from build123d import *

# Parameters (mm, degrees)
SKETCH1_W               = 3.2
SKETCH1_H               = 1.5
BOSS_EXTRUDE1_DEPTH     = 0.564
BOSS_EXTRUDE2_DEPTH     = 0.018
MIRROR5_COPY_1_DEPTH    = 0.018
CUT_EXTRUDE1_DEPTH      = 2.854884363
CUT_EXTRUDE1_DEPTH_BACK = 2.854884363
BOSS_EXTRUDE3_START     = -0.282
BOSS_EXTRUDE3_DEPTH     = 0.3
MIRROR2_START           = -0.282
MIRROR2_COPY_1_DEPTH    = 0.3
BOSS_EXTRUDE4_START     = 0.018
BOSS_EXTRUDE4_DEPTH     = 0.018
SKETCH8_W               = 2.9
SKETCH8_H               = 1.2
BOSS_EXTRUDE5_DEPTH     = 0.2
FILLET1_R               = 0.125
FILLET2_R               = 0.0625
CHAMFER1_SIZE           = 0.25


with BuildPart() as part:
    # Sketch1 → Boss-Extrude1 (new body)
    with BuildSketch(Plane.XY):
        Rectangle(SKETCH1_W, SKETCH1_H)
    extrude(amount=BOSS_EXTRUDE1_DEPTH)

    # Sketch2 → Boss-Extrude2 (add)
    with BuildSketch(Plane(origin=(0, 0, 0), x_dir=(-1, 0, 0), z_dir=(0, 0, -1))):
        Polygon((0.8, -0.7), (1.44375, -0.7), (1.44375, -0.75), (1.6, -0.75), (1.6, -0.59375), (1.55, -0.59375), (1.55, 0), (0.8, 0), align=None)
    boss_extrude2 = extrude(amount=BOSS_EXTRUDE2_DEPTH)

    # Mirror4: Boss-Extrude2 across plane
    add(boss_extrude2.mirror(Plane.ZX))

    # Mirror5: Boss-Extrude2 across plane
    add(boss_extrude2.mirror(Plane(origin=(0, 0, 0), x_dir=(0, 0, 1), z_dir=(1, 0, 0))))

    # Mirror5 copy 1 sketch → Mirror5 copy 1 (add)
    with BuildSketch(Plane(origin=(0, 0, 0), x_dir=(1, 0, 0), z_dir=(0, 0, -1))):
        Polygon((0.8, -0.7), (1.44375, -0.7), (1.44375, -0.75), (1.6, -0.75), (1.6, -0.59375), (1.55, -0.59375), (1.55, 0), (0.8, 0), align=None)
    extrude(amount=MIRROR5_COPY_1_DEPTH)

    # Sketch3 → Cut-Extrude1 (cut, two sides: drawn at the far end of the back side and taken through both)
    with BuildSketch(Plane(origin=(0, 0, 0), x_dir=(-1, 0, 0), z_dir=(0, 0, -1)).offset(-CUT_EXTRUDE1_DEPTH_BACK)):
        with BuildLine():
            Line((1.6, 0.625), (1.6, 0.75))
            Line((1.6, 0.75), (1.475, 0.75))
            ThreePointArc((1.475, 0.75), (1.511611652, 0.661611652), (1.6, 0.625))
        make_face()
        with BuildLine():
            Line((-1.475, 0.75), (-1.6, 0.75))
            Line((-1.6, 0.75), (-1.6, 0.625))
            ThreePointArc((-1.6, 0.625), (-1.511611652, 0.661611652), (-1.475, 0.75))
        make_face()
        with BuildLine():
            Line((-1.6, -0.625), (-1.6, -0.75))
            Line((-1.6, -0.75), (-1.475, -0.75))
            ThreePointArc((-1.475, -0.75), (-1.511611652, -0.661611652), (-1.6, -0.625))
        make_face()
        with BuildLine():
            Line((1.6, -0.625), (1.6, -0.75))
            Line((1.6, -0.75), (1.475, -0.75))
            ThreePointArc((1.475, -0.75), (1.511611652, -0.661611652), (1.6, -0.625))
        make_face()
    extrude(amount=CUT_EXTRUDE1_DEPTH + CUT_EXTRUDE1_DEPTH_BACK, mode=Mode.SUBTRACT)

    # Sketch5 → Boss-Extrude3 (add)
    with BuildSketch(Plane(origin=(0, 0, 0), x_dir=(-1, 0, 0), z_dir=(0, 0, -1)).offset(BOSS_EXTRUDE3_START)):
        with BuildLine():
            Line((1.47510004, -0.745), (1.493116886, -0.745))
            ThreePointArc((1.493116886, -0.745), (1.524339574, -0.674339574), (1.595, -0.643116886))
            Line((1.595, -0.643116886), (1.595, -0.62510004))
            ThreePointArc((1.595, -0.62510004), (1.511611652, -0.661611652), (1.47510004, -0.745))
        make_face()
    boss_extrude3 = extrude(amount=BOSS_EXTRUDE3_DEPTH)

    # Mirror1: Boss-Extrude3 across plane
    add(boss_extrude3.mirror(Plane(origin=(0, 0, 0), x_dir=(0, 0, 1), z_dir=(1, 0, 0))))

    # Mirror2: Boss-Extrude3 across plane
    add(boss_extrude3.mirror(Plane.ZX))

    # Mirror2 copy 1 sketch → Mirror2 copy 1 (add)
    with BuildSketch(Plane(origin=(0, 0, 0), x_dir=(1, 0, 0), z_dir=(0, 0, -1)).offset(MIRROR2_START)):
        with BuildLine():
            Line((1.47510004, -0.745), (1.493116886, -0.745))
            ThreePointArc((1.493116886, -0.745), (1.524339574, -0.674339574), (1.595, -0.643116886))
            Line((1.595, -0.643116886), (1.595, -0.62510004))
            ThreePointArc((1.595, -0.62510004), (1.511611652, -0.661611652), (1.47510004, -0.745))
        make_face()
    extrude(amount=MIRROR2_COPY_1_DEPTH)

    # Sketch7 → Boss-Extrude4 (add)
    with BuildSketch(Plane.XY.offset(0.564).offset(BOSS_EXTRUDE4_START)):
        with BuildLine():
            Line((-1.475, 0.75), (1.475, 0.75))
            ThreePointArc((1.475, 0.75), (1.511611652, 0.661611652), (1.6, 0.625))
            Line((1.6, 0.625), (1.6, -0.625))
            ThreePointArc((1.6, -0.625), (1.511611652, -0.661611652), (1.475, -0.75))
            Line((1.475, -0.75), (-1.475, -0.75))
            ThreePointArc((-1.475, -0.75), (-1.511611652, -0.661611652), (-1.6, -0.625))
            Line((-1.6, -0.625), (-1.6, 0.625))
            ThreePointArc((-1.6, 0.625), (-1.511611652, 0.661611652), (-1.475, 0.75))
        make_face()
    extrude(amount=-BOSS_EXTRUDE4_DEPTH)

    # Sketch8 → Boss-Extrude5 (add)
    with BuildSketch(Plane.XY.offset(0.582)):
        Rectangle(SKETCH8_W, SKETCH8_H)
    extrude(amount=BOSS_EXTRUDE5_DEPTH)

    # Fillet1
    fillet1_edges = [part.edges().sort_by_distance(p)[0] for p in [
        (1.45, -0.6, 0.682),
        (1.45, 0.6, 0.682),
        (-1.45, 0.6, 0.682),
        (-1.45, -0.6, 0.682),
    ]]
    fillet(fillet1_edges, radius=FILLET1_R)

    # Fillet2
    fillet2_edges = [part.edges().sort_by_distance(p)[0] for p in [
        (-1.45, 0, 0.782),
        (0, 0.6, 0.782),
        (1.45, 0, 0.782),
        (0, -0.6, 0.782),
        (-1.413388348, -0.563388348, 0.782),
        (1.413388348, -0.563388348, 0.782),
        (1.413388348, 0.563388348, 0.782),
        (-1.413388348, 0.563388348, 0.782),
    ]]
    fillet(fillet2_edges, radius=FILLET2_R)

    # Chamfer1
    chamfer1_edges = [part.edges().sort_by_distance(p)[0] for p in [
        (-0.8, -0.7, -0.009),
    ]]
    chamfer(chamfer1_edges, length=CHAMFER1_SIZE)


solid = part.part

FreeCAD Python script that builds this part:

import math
import FreeCAD as App
import Part
import Sketcher

V = App.Vector


def edges_at(feature, points):
    """Names of the edges that pass closest to the given points."""
    edges = feature.Shape.Edges
    near = lambda p: min(range(len(edges)), key=lambda i: edges[i].distToShape(Part.Vertex(*p))[0])
    return sorted({f"Edge{near(p) + 1}" for p in points})

doc = App.newDocument("Part")
params = doc.addObject("Spreadsheet::Sheet", "Params")
for row, (alias, value) in enumerate([
    ("sketch1_width", "3.2 mm"),
    ("sketch1_height", "1.5 mm"),
    ("pad1_length", "0.564 mm"),
    ("sketch2_height", "0.7 mm"),
    ("sketch2_width", "0.05 mm"),
    ("sketch2_width2", "0.75 mm"),
    ("pad2_length", "0.018 mm"),
    ("sketch3_height", "0.7 mm"),
    ("sketch3_width", "0.05 mm"),
    ("sketch3_width2", "0.75 mm"),
    ("pad3_length", "0.018 mm"),
    ("pad4_length", "0.3 mm"),
    ("pad5_length", "0.3 mm"),
    ("sketch7_width", "2.95 mm"),
    ("sketch7_height", "1.25 mm"),
    ("pad6_length", "0.018 mm"),
    ("sketch8_width", "2.9 mm"),
    ("sketch8_height", "1.2 mm"),
    ("pad7_length", "0.2 mm"),
    ("fillet_radius", "0.125 mm"),
    ("fillet2_radius", "0.0625 mm"),
    ("chamfer_size", "0.25 mm"),
], start=1):
    params.set(f"A{row}", alias)
    params.set(f"B{row}", "=" + value)
    params.setAlias(f"B{row}", alias)

body = doc.addObject("PartDesign::Body", "Body")

# Sketch on XY plane
sketch1 = doc.addObject("Sketcher::SketchObject", "Sketch")
body.addObject(sketch1)
sketch1.AttachmentSupport = (doc.XY_Plane, [""])
sketch1.MapMode = "FlatFace"
sketch1.addGeometry([
    Part.LineSegment(V(-1.6, 0.75, 0), V(-1.6, -0.75, 0)),
    Part.LineSegment(V(-1.6, -0.75, 0), V(1.6, -0.75, 0)),
    Part.LineSegment(V(1.6, -0.75, 0), V(1.6, 0.75, 0)),
    Part.LineSegment(V(1.6, 0.75, 0), V(-1.6, 0.75, 0)),
], False)
sketch1.addConstraint([
    Sketcher.Constraint("Coincident", 0, 2, 1, 1),
    Sketcher.Constraint("Coincident", 1, 2, 2, 1),
    Sketcher.Constraint("Coincident", 2, 2, 3, 1),
    Sketcher.Constraint("Coincident", 3, 2, 0, 1),
    Sketcher.Constraint("Vertical", 0),
    Sketcher.Constraint("Horizontal", 1),
    Sketcher.Constraint("Vertical", 2),
    Sketcher.Constraint("Horizontal", 3),
    Sketcher.Constraint("Symmetric", 0, 2, 2, 2, -1, 1),
    Sketcher.Constraint("DistanceX", 1, 1, 1, 2, 3.2),
    Sketcher.Constraint("DistanceY", 0, 2, 0, 1, 1.5),
])
sketch1.setExpression("Constraints[9]", "Params.sketch1_width")
sketch1.setExpression("Constraints[10]", "Params.sketch1_height")
pad1 = doc.addObject("PartDesign::Pad", "Pad")
body.addObject(pad1)
pad1.Profile = sketch1
pad1.setExpression("Length", "Params.pad1_length")

# Sketch on XY plane
sketch2 = doc.addObject("Sketcher::SketchObject", "Sketch001")
body.addObject(sketch2)
sketch2.AttachmentSupport = (doc.XY_Plane, [""])
sketch2.MapMode = "FlatFace"
sketch2.addGeometry([
    Part.LineSegment(V(-0.8, -0.7, 0), V(-1.44375, -0.7, 0)),  # 0
    Part.LineSegment(V(-1.44375, -0.7, 0), V(-1.44375, -0.75, 0)),  # 1
    Part.LineSegment(V(-1.44375, -0.75, 0), V(-1.6, -0.75, 0)),  # 2
    Part.LineSegment(V(-1.6, -0.75, 0), V(-1.6, -0.59375, 0)),  # 3
    Part.LineSegment(V(-1.6, -0.59375, 0), V(-1.55, -0.59375, 0)),  # 4
    Part.LineSegment(V(-1.55, -0.59375, 0), V(-1.55, 0, 0)),  # 5
    Part.LineSegment(V(-1.55, 0, 0), V(-0.8, 0, 0)),  # 6
    Part.LineSegment(V(-0.8, 0, 0), V(-0.8, -0.7, 0)),  # 7
], False)
sketch2.addConstraint([
    Sketcher.Constraint("Coincident", 0, 2, 1, 1),
    Sketcher.Constraint("Coincident", 1, 2, 2, 1),
    Sketcher.Constraint("Coincident", 2, 2, 3, 1),
    Sketcher.Constraint("Coincident", 3, 2, 4, 1),
    Sketcher.Constraint("Coincident", 4, 2, 5, 1),
    Sketcher.Constraint("Coincident", 5, 2, 6, 1),
    Sketcher.Constraint("Coincident", 6, 2, 7, 1),
    Sketcher.Constraint("Coincident", 7, 2, 0, 1),
    Sketcher.Constraint("Horizontal", 0),
    Sketcher.Constraint("Vertical", 1),
    Sketcher.Constraint("Horizontal", 2),
    Sketcher.Constraint("Vertical", 3),
    Sketcher.Constraint("Horizontal", 4),
    Sketcher.Constraint("Vertical", 5),
    Sketcher.Constraint("Horizontal", 6),
    Sketcher.Constraint("Vertical", 7),
    Sketcher.Constraint("PointOnObject", 5, 2, -1),
    Sketcher.Constraint("Equal", 4, 1),
    Sketcher.Constraint("Equal", 2, 3),
    Sketcher.Constraint("DistanceY", 7, 2, 7, 1, 0.7),
    Sketcher.Constraint("DistanceX", 4, 1, 4, 2, 0.05),
    Sketcher.Constraint("DistanceX", 6, 1, 6, 2, 0.75),
    Sketcher.Constraint("DistanceX", 2, 2, -1, 1, 1.6),
    Sketcher.Constraint("DistanceX", 0, 2, 0, 1, 0.64375),
])
sketch2.setExpression("Constraints[19]", "Params.sketch2_height")
sketch2.setExpression("Constraints[20]", "Params.sketch2_width")
sketch2.setExpression("Constraints[21]", "Params.sketch2_width2")
pad2 = doc.addObject("PartDesign::Pad", "Pad001")
body.addObject(pad2)
pad2.Profile = sketch2
pad2.setExpression("Length", "Params.pad2_length")
pad2.Reversed = True
doc.recompute()

mirrored = doc.addObject("PartDesign::Mirrored", "Mirrored")
body.addObject(mirrored)
mirrored.Originals = [pad2]
mirrored.MirrorPlane = (doc.XZ_Plane, [""])
body.Tip = mirrored
doc.recompute()

mirrored2 = doc.addObject("PartDesign::Mirrored", "Mirrored001")
body.addObject(mirrored2)
mirrored2.Originals = [pad2]
mirrored2.MirrorPlane = (doc.YZ_Plane, [""])
body.Tip = mirrored2

# Sketch on XY plane
sketch3 = doc.addObject("Sketcher::SketchObject", "Sketch002")
body.addObject(sketch3)
sketch3.AttachmentSupport = (doc.XY_Plane, [""])
sketch3.MapMode = "FlatFace"
sketch3.addGeometry([
    Part.LineSegment(V(0.8, 0.7, 0), V(1.44375, 0.7, 0)),  # 0
    Part.LineSegment(V(1.44375, 0.7, 0), V(1.44375, 0.75, 0)),  # 1
    Part.LineSegment(V(1.44375, 0.75, 0), V(1.6, 0.75, 0)),  # 2
    Part.LineSegment(V(1.6, 0.75, 0), V(1.6, 0.59375, 0)),  # 3
    Part.LineSegment(V(1.6, 0.59375, 0), V(1.55, 0.59375, 0)),  # 4
    Part.LineSegment(V(1.55, 0.59375, 0), V(1.55, 0, 0)),  # 5
    Part.LineSegment(V(1.55, 0, 0), V(0.8, 0, 0)),  # 6
    Part.LineSegment(V(0.8, 0, 0), V(0.8, 0.7, 0)),  # 7
], False)
sketch3.addConstraint([
    Sketcher.Constraint("Coincident", 0, 2, 1, 1),
    Sketcher.Constraint("Coincident", 1, 2, 2, 1),
    Sketcher.Constraint("Coincident", 2, 2, 3, 1),
    Sketcher.Constraint("Coincident", 3, 2, 4, 1),
    Sketcher.Constraint("Coincident", 4, 2, 5, 1),
    Sketcher.Constraint("Coincident", 5, 2, 6, 1),
    Sketcher.Constraint("Coincident", 6, 2, 7, 1),
    Sketcher.Constraint("Coincident", 7, 2, 0, 1),
    Sketcher.Constraint("Horizontal", 0),
    Sketcher.Constraint("Vertical", 1),
    Sketcher.Constraint("Horizontal", 2),
    Sketcher.Constraint("Vertical", 3),
    Sketcher.Constraint("Horizontal", 4),
    Sketcher.Constraint("Vertical", 5),
    Sketcher.Constraint("Horizontal", 6),
    Sketcher.Constraint("Vertical", 7),
    Sketcher.Constraint("PointOnObject", 5, 2, -1),
    Sketcher.Constraint("Equal", 4, 1),
    Sketcher.Constraint("Equal", 2, 3),
    Sketcher.Constraint("DistanceY", 7, 1, 7, 2, 0.7),
    Sketcher.Constraint("DistanceX", 4, 2, 4, 1, 0.05),
    Sketcher.Constraint("DistanceX", 6, 2, 6, 1, 0.75),
    Sketcher.Constraint("DistanceX", -1, 1, 2, 2, 1.6),
    Sketcher.Constraint("DistanceX", 0, 1, 0, 2, 0.64375),
])
sketch3.setExpression("Constraints[19]", "Params.sketch3_height")
sketch3.setExpression("Constraints[20]", "Params.sketch3_width")
sketch3.setExpression("Constraints[21]", "Params.sketch3_width2")
pad3 = doc.addObject("PartDesign::Pad", "Pad002")
body.addObject(pad3)
pad3.Profile = sketch3
pad3.setExpression("Length", "Params.pad3_length")
pad3.Reversed = True

# Sketch on XY plane
sketch4 = doc.addObject("Sketcher::SketchObject", "Sketch003")
body.addObject(sketch4)
sketch4.AttachmentSupport = (doc.XY_Plane, [""])
sketch4.MapMode = "FlatFace"
sketch4.addGeometry([
    Part.LineSegment(V(-1.6, 0.625, 0), V(-1.6, 0.75, 0)),  # 0
    Part.LineSegment(V(-1.6, 0.75, 0), V(-1.475, 0.75, 0)),  # 1
    Part.ArcOfCircle(Part.Circle(V(-1.6, 0.75, 0), V(0, 0, 1), 0.125), math.radians(-90), math.radians(0)),  # 2
    Part.LineSegment(V(1.475, 0.75, 0), V(1.6, 0.75, 0)),  # 3
    Part.LineSegment(V(1.6, 0.75, 0), V(1.6, 0.625, 0)),  # 4
    Part.ArcOfCircle(Part.Circle(V(1.6, 0.75, 0), V(0, 0, 1), 0.125), math.radians(180), math.radians(270)),  # 5
    Part.LineSegment(V(1.6, -0.625, 0), V(1.6, -0.75, 0)),  # 6
    Part.LineSegment(V(1.6, -0.75, 0), V(1.475, -0.75, 0)),  # 7
    Part.ArcOfCircle(Part.Circle(V(1.6, -0.75, 0), V(0, 0, 1), 0.125), math.radians(90), math.radians(180)),  # 8
    Part.LineSegment(V(-1.6, -0.75, 0), V(-1.6, -0.625, 0)),  # 9
    Part.ArcOfCircle(Part.Circle(V(-1.6, -0.75, 0), V(0, 0, 1), 0.125), math.radians(0), math.radians(90)),  # 10
    Part.LineSegment(V(-1.475, -0.75, 0), V(-1.6, -0.75, 0)),  # 11
], False)
sketch4.addConstraint([
    Sketcher.Constraint("Coincident", 0, 2, 1, 1),
    Sketcher.Constraint("Coincident", 1, 2, 2, 2),
    Sketcher.Constraint("Coincident", 2, 1, 0, 1),
    Sketcher.Constraint("Coincident", 3, 2, 4, 1),
    Sketcher.Constraint("Coincident", 4, 2, 5, 2),
    Sketcher.Constraint("Coincident", 5, 1, 3, 1),
    Sketcher.Constraint("Coincident", 6, 2, 7, 1),
    Sketcher.Constraint("Coincident", 7, 2, 8, 2),
    Sketcher.Constraint("Coincident", 8, 1, 6, 1),
    Sketcher.Constraint("Coincident", 9, 2, 10, 2),
    Sketcher.Constraint("Coincident", 10, 1, 11, 1),
    Sketcher.Constraint("Coincident", 11, 2, 9, 1),
    Sketcher.Constraint("Vertical", 0),
    Sketcher.Constraint("Horizontal", 1),
    Sketcher.Constraint("Horizontal", 3),
    Sketcher.Constraint("Vertical", 4),
    Sketcher.Constraint("Vertical", 6),
    Sketcher.Constraint("Horizontal", 7),
    Sketcher.Constraint("Vertical", 9),
    Sketcher.Constraint("Horizontal", 11),
    Sketcher.Constraint("Coincident", 0, 2, 2, 3),
    Sketcher.Constraint("Coincident", 3, 2, 5, 3),
    Sketcher.Constraint("Coincident", 6, 2, 8, 3),
    Sketcher.Constraint("Coincident", 11, 2, 10, 3),
    Sketcher.Constraint("Equal", 2, 5),
    Sketcher.Constraint("Equal", 5, 8),
    Sketcher.Constraint("Equal", 8, 10),
    Sketcher.Constraint("Symmetric", 2, 3, 8, 3, -1, 1),
    Sketcher.Constraint("Symmetric", 5, 3, 10, 3, -1, 1),
    Sketcher.Constraint("Symmetric", 2, 3, 5, 3, -2),
    Sketcher.Constraint("Radius", 2, 0.125),
    Sketcher.Constraint("DistanceX", 2, 3, -1, 1, 1.6),
    Sketcher.Constraint("DistanceY", 8, 3, 5, 3, 1.5),
])
pocket1 = doc.addObject("PartDesign::Pocket", "Pocket")
body.addObject(pocket1)
pocket1.Profile = sketch4
pocket1.Type = "ThroughAll"
pocket1.Midplane = True

# Sketch on XY plane
sketch5 = doc.addObject("Sketcher::SketchObject", "Sketch004")
body.addObject(sketch5)
sketch5.AttachmentSupport = (doc.XY_Plane, [""])
sketch5.MapMode = "FlatFace"
sketch5.AttachmentOffset = App.Placement(V(0, 0, 0.282), App.Rotation())
sketch5.addGeometry([
    Part.LineSegment(V(-1.4751, -0.745, 0), V(-1.493117, -0.745, 0)),
    Part.ArcOfCircle(Part.Circle(V(-1.6, -0.75, 0), V(0, 0, 1), 0.107), math.radians(2.678348), math.radians(87.321652)),
    Part.LineSegment(V(-1.595, -0.643117, 0), V(-1.595, -0.6251, 0)),
    Part.ArcOfCircle(Part.Circle(V(-1.6, -0.75, 0), V(0, 0, 1), 0.125), math.radians(2.292442), math.radians(87.707558)),
], False)
sketch5.addConstraint([
    Sketcher.Constraint("Coincident", 0, 2, 1, 1),
    Sketcher.Constraint("Coincident", 1, 2, 2, 1),
    Sketcher.Constraint("Coincident", 2, 2, 3, 2),
    Sketcher.Constraint("Coincident", 3, 1, 0, 1),
    Sketcher.Constraint("Horizontal", 0),
    Sketcher.Constraint("Vertical", 2),
    Sketcher.Constraint("Coincident", 3, 3, 1, 3),
    Sketcher.Constraint("Radius", 1, 0.107),
    Sketcher.Constraint("Radius", 3, 0.125),
    Sketcher.Constraint("DistanceX", 1, 3, -1, 1, 1.6),
    Sketcher.Constraint("DistanceY", 1, 3, -1, 1, 0.75),
    Sketcher.Constraint("DistanceY", 0, 2, -1, 1, 0.745),
    Sketcher.Constraint("DistanceX", 1, 2, -1, 1, 1.595),
])
pad4 = doc.addObject("PartDesign::Pad", "Pad003")
body.addObject(pad4)
pad4.Profile = sketch5
pad4.setExpression("Length", "Params.pad4_length")
pad4.Reversed = True
doc.recompute()

mirrored3 = doc.addObject("PartDesign::Mirrored", "Mirrored002")
body.addObject(mirrored3)
mirrored3.Originals = [pad4]
mirrored3.MirrorPlane = (doc.YZ_Plane, [""])
body.Tip = mirrored3
doc.recompute()

mirrored4 = doc.addObject("PartDesign::Mirrored", "Mirrored003")
body.addObject(mirrored4)
mirrored4.Originals = [pad4]
mirrored4.MirrorPlane = (doc.XZ_Plane, [""])
body.Tip = mirrored4

# Sketch on XY plane
sketch6 = doc.addObject("Sketcher::SketchObject", "Sketch005")
body.addObject(sketch6)
sketch6.AttachmentSupport = (doc.XY_Plane, [""])
sketch6.MapMode = "FlatFace"
sketch6.AttachmentOffset = App.Placement(V(0, 0, 0.282), App.Rotation())
sketch6.addGeometry([
    Part.LineSegment(V(1.4751, 0.745, 0), V(1.493117, 0.745, 0)),
    Part.ArcOfCircle(Part.Circle(V(1.6, 0.75, 0), V(0, 0, 1), 0.107), math.radians(-177.321652), math.radians(-92.678348)),
    Part.LineSegment(V(1.595, 0.643117, 0), V(1.595, 0.6251, 0)),
    Part.ArcOfCircle(Part.Circle(V(1.6, 0.75, 0), V(0, 0, 1), 0.125), math.radians(-177.707558), math.radians(-92.292442)),
], False)
sketch6.addConstraint([
    Sketcher.Constraint("Coincident", 0, 2, 1, 1),
    Sketcher.Constraint("Coincident", 1, 2, 2, 1),
    Sketcher.Constraint("Coincident", 2, 2, 3, 2),
    Sketcher.Constraint("Coincident", 3, 1, 0, 1),
    Sketcher.Constraint("Horizontal", 0),
    Sketcher.Constraint("Vertical", 2),
    Sketcher.Constraint("Coincident", 3, 3, 1, 3),
    Sketcher.Constraint("Radius", 1, 0.107),
    Sketcher.Constraint("Radius", 3, 0.125),
    Sketcher.Constraint("DistanceX", -1, 1, 1, 3, 1.6),
    Sketcher.Constraint("DistanceY", -1, 1, 1, 3, 0.75),
    Sketcher.Constraint("DistanceY", -1, 1, 0, 2, 0.745),
    Sketcher.Constraint("DistanceX", -1, 1, 1, 2, 1.595),
])
pad5 = doc.addObject("PartDesign::Pad", "Pad004")
body.addObject(pad5)
pad5.Profile = sketch6
pad5.setExpression("Length", "Params.pad5_length")
pad5.Reversed = True

# Sketch on XY plane
sketch7 = doc.addObject("Sketcher::SketchObject", "Sketch006")
body.addObject(sketch7)
sketch7.AttachmentSupport = (doc.XY_Plane, [""])
sketch7.MapMode = "FlatFace"
sketch7.AttachmentOffset = App.Placement(V(0, 0, 0.582), App.Rotation())
sketch7.addGeometry([
    Part.LineSegment(V(1.475, 0.75, 0), V(-1.475, 0.75, 0)),  # 0
    Part.ArcOfCircle(Part.Circle(V(-1.6, 0.75, 0), V(0, 0, 1), 0.125), math.radians(-90), math.radians(0)),  # 1
    Part.LineSegment(V(-1.6, 0.625, 0), V(-1.6, -0.625, 0)),  # 2
    Part.ArcOfCircle(Part.Circle(V(-1.6, -0.75, 0), V(0, 0, 1), 0.125), math.radians(0), math.radians(90)),  # 3
    Part.LineSegment(V(-1.475, -0.75, 0), V(1.475, -0.75, 0)),  # 4
    Part.ArcOfCircle(Part.Circle(V(1.6, -0.75, 0), V(0, 0, 1), 0.125), math.radians(90), math.radians(180)),  # 5
    Part.LineSegment(V(1.6, -0.625, 0), V(1.6, 0.625, 0)),  # 6
    Part.ArcOfCircle(Part.Circle(V(1.6, 0.75, 0), V(0, 0, 1), 0.125), math.radians(180), math.radians(270)),  # 7
], False)
sketch7.addConstraint([
    Sketcher.Constraint("Coincident", 0, 2, 1, 2),
    Sketcher.Constraint("Coincident", 1, 1, 2, 1),
    Sketcher.Constraint("Coincident", 2, 2, 3, 2),
    Sketcher.Constraint("Coincident", 3, 1, 4, 1),
    Sketcher.Constraint("Coincident", 4, 2, 5, 2),
    Sketcher.Constraint("Coincident", 5, 1, 6, 1),
    Sketcher.Constraint("Coincident", 6, 2, 7, 2),
    Sketcher.Constraint("Coincident", 7, 1, 0, 1),
    Sketcher.Constraint("Horizontal", 0),
    Sketcher.Constraint("Vertical", 2),
    Sketcher.Constraint("Horizontal", 4),
    Sketcher.Constraint("Vertical", 6),
    Sketcher.Constraint("Equal", 1, 3),
    Sketcher.Constraint("Equal", 3, 5),
    Sketcher.Constraint("Equal", 5, 7),
    Sketcher.Constraint("Symmetric", 1, 3, 5, 3, -1, 1),
    Sketcher.Constraint("Symmetric", 3, 3, 7, 3, -1, 1),
    Sketcher.Constraint("Symmetric", 3, 3, 5, 3, -2),
    Sketcher.Constraint("Horizontal", 7, 3, 0, 2),
    Sketcher.Constraint("Horizontal", 5, 3, 3, 1),
    Sketcher.Constraint("Vertical", 3, 3, 1, 1),
    Sketcher.Constraint("Vertical", 7, 3, 5, 1),
    Sketcher.Constraint("Radius", 1, 0.125),
    Sketcher.Constraint("DistanceX", 0, 2, 0, 1, 2.95),
    Sketcher.Constraint("DistanceY", 2, 2, 2, 1, 1.25),
])
sketch7.setExpression("Constraints[23]", "Params.sketch7_width")
sketch7.setExpression("Constraints[24]", "Params.sketch7_height")
pad6 = doc.addObject("PartDesign::Pad", "Pad005")
body.addObject(pad6)
pad6.Profile = sketch7
pad6.setExpression("Length", "Params.pad6_length")
pad6.Reversed = True

# Sketch on XY plane
sketch8 = doc.addObject("Sketcher::SketchObject", "Sketch007")
body.addObject(sketch8)
sketch8.AttachmentSupport = (doc.XY_Plane, [""])
sketch8.MapMode = "FlatFace"
sketch8.AttachmentOffset = App.Placement(V(0, 0, 0.582), App.Rotation())
sketch8.addGeometry([
    Part.LineSegment(V(-1.45, 0.6, 0), V(-1.45, -0.6, 0)),
    Part.LineSegment(V(-1.45, -0.6, 0), V(1.45, -0.6, 0)),
    Part.LineSegment(V(1.45, -0.6, 0), V(1.45, 0.6, 0)),
    Part.LineSegment(V(1.45, 0.6, 0), V(-1.45, 0.6, 0)),
], False)
sketch8.addConstraint([
    Sketcher.Constraint("Coincident", 0, 2, 1, 1),
    Sketcher.Constraint("Coincident", 1, 2, 2, 1),
    Sketcher.Constraint("Coincident", 2, 2, 3, 1),
    Sketcher.Constraint("Coincident", 3, 2, 0, 1),
    Sketcher.Constraint("Vertical", 0),
    Sketcher.Constraint("Horizontal", 1),
    Sketcher.Constraint("Vertical", 2),
    Sketcher.Constraint("Horizontal", 3),
    Sketcher.Constraint("Symmetric", 0, 2, 2, 2, -1, 1),
    Sketcher.Constraint("DistanceX", 1, 1, 1, 2, 2.9),
    Sketcher.Constraint("DistanceY", 0, 2, 0, 1, 1.2),
])
sketch8.setExpression("Constraints[9]", "Params.sketch8_width")
sketch8.setExpression("Constraints[10]", "Params.sketch8_height")
pad7 = doc.addObject("PartDesign::Pad", "Pad006")
body.addObject(pad7)
pad7.Profile = sketch8
pad7.setExpression("Length", "Params.pad7_length")
doc.recompute()

fillet = doc.addObject("PartDesign::Fillet", "Fillet")
body.addObject(fillet)
fillet.Base = (pad7, edges_at(pad7, [
    (1.45, -0.6, 0.682),
    (1.45, 0.6, 0.682),
    (-1.45, 0.6, 0.682),
    (-1.45, -0.6, 0.682),
]))
fillet.setExpression("Radius", "Params.fillet_radius")
doc.recompute()

fillet2 = doc.addObject("PartDesign::Fillet", "Fillet001")
body.addObject(fillet2)
fillet2.Base = (fillet, edges_at(fillet, [
    (-1.45, 0, 0.782),
    (0, 0.6, 0.782),
    (1.45, 0, 0.782),
    (0, -0.6, 0.782),
    (-1.413, -0.563, 0.782),
    (1.413, -0.563, 0.782),
    (1.413, 0.563, 0.782),
    (-1.413, 0.563, 0.782),
]))
fillet2.setExpression("Radius", "Params.fillet2_radius")
doc.recompute()

chamfer = doc.addObject("PartDesign::Chamfer", "Chamfer")
body.addObject(chamfer)
chamfer.Base = (fillet2, edges_at(fillet2, [(-0.8, -0.7, -0.009)]))
chamfer.setExpression("Size", "Params.chamfer_size")

doc.recompute()
